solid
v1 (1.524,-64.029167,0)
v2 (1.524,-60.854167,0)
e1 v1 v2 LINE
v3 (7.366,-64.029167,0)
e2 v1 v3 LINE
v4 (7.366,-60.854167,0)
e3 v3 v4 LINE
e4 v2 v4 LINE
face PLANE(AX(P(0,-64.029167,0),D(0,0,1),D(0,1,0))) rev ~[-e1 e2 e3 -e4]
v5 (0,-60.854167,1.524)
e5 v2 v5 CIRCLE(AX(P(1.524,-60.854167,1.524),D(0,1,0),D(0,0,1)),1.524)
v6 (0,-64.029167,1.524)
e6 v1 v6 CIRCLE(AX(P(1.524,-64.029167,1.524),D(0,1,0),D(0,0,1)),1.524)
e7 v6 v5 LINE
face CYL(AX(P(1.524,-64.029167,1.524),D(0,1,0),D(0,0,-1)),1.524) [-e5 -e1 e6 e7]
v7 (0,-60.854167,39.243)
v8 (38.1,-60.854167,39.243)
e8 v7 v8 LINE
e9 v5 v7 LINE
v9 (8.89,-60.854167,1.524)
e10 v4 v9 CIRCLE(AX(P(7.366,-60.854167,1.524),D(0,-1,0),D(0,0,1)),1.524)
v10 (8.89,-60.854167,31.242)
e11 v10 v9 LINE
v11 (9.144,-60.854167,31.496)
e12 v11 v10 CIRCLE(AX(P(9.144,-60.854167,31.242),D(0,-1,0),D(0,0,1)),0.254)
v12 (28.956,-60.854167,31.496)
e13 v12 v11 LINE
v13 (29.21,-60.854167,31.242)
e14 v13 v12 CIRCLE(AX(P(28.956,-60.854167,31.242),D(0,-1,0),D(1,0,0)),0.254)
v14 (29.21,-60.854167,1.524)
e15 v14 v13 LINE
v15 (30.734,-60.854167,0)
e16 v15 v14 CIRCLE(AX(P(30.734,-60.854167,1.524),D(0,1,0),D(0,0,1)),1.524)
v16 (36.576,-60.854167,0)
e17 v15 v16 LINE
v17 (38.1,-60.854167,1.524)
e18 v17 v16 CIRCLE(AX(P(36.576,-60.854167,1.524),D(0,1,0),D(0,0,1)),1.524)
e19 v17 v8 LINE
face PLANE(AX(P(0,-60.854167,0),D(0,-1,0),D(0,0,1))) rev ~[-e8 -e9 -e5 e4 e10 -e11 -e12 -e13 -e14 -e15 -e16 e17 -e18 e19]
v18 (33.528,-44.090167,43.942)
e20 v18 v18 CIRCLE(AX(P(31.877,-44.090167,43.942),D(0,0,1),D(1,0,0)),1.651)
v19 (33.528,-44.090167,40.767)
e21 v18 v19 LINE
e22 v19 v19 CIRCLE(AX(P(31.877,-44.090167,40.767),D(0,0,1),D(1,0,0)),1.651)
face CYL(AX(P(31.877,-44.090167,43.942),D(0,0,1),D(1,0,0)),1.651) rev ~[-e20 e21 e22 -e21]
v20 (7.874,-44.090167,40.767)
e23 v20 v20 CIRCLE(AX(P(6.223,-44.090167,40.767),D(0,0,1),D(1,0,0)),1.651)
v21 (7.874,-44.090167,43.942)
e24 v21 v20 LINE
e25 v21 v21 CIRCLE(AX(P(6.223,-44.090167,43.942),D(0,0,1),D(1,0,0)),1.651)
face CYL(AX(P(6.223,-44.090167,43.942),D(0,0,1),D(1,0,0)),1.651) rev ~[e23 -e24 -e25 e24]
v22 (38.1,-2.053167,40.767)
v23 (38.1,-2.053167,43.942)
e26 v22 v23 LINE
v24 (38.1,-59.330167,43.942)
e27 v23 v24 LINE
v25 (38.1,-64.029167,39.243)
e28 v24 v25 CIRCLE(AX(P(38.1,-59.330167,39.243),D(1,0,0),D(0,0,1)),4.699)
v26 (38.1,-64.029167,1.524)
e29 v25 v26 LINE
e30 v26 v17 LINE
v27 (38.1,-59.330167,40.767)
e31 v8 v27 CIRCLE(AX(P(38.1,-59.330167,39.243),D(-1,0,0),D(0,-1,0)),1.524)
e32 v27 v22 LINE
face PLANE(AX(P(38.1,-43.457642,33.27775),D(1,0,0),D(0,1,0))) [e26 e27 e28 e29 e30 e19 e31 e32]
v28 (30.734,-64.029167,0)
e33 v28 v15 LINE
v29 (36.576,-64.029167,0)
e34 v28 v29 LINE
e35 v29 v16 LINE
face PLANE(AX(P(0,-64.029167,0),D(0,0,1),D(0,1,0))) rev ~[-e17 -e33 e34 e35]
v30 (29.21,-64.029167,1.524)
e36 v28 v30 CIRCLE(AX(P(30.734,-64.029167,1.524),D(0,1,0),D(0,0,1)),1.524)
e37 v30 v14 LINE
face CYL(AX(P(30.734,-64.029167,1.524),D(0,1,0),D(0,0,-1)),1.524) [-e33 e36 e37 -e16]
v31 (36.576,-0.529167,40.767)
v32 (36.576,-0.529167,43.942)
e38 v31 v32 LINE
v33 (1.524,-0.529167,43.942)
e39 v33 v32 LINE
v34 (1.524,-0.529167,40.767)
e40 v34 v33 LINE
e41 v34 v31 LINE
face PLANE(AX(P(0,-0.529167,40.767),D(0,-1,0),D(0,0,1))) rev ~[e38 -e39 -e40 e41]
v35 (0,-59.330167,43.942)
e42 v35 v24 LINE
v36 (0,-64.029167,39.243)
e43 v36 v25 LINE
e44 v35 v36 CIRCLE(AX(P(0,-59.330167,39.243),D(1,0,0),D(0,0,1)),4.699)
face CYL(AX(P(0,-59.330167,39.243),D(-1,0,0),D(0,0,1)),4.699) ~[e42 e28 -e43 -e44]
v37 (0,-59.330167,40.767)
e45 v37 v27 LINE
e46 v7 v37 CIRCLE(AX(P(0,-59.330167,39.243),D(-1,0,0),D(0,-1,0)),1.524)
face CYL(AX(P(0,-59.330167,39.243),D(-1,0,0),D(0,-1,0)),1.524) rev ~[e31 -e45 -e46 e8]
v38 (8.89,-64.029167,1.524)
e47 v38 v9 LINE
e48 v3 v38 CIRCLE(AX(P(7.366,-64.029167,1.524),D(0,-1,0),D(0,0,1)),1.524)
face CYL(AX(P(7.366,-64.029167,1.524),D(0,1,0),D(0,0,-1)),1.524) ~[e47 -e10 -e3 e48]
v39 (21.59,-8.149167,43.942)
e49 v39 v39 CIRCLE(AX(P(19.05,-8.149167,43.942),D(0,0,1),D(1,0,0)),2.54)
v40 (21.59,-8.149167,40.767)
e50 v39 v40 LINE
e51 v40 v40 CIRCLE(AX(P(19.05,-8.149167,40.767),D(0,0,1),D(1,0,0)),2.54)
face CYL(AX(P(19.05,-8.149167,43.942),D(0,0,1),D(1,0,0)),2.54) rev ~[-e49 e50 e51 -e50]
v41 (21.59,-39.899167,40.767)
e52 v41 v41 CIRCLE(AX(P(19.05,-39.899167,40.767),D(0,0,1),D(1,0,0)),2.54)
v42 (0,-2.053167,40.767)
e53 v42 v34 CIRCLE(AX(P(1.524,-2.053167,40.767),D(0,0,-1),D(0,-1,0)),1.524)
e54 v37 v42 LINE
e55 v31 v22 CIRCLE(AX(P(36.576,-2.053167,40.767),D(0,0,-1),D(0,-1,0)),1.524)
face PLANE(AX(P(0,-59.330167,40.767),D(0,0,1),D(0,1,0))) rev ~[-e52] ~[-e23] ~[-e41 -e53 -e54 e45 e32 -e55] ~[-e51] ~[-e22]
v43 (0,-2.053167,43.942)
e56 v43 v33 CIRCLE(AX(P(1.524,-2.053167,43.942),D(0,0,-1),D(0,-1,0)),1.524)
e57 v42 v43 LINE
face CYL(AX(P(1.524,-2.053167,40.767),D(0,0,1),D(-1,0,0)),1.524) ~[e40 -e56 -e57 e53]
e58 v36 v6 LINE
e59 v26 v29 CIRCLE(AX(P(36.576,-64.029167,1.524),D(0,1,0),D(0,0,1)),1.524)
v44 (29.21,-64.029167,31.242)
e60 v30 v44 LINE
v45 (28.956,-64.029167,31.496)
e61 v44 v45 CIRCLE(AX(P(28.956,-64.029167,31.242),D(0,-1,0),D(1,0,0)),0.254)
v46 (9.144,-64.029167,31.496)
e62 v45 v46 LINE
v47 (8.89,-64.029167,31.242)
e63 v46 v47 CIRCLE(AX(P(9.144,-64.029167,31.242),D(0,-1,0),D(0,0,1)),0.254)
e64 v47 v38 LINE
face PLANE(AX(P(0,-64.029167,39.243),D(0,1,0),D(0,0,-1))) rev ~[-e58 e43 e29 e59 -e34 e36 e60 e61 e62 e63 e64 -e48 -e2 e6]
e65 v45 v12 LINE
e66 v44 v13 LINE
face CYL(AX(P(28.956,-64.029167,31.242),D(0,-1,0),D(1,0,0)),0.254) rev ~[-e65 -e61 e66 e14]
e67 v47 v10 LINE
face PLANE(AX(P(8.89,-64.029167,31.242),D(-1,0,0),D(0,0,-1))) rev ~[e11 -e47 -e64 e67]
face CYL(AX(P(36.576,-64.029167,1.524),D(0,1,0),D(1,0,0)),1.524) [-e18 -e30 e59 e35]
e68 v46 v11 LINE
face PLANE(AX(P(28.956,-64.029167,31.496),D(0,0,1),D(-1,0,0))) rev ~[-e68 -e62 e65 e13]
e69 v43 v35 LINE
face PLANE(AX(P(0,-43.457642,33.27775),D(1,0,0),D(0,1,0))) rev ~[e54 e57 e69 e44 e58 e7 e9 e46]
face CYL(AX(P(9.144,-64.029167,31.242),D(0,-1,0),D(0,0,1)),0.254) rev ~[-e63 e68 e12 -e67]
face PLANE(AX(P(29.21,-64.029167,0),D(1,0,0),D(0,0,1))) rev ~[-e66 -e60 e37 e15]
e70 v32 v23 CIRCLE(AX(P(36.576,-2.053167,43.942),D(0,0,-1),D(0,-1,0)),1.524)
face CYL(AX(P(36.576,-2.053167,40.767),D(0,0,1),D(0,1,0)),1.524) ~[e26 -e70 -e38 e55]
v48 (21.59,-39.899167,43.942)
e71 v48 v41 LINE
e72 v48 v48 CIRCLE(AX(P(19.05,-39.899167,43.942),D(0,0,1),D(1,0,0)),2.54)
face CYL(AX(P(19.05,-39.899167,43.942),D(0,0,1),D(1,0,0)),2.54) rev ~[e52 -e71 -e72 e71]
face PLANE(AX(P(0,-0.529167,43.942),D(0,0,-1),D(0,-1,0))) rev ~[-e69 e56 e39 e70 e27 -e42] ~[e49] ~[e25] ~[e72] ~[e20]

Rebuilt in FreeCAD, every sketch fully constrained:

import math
import FreeCAD as App
import Part
import Sketcher
from FreeCAD import Vector
Q = App.Units.Quantity


def edges_at(feature, points):
    """Names of the edges that pass closest to the given points."""
    edges = feature.Shape.Edges
    near = lambda p: min(range(len(edges)), key=lambda i: edges[i].distToShape(Part.Vertex(*p))[0])
    return sorted({f"Edge{near(p) + 1}" for p in points})

doc = App.newDocument("Part")
body = doc.addObject("PartDesign::Body", "Body")

# Sketch on YZ plane
sketch1 = body.newObject("Sketcher::SketchObject", "Sketch")
sketch1.AttachmentSupport = (doc.getObject("YZ_Plane"), [""])
sketch1.MapMode = "FlatFace"
sketch1.addGeometry(Part.LineSegment(Vector(-64, 0, 0), Vector(-60.9, 0, 0)), False)
sketch1.addGeometry(Part.LineSegment(Vector(-60.9, 0, 0), Vector(-60.9, 39.2, 0)), False)
sketch1.addGeometry(Part.ArcOfCircle(Part.Circle(Vector(-59.3, 39.2, 0), Vector(0, 0, 1), 1.5), math.radians(90), math.radians(180)), False)
sketch1.addGeometry(Part.LineSegment(Vector(-59.3, 40.8, 0), Vector(-0.5, 40.8, 0)), False)
sketch1.addGeometry(Part.LineSegment(Vector(-0.5, 40.8, 0), Vector(-0.5, 43.9, 0)), False)
sketch1.addGeometry(Part.LineSegment(Vector(-0.5, 43.9, 0), Vector(-59.3, 43.9, 0)), False)
sketch1.addGeometry(Part.ArcOfCircle(Part.Circle(Vector(-59.3, 39.2, 0), Vector(0, 0, 1), 4.7), math.radians(90), math.radians(180)), False)
sketch1.addGeometry(Part.LineSegment(Vector(-64, 39.2, 0), Vector(-64, 0, 0)), False)
sketch1.addConstraint(Sketcher.Constraint("Coincident", 0, 2, 1, 1))
sketch1.addConstraint(Sketcher.Constraint("Tangent", 1, 2, 2, 2))
sketch1.addConstraint(Sketcher.Constraint("Tangent", 2, 1, 3, 1))
sketch1.addConstraint(Sketcher.Constraint("Coincident", 3, 2, 4, 1))
sketch1.addConstraint(Sketcher.Constraint("Coincident", 4, 2, 5, 1))
sketch1.addConstraint(Sketcher.Constraint("Tangent", 5, 2, 6, 1))
sketch1.addConstraint(Sketcher.Constraint("Tangent", 6, 2, 7, 1))
sketch1.addConstraint(Sketcher.Constraint("Coincident", 7, 2, 0, 1))
sketch1.addConstraint(Sketcher.Constraint("Horizontal", 0))
sketch1.addConstraint(Sketcher.Constraint("Vertical", 1))
sketch1.addConstraint(Sketcher.Constraint("Horizontal", 3))
sketch1.addConstraint(Sketcher.Constraint("Vertical", 4))
sketch1.addConstraint(Sketcher.Constraint("Horizontal", 5))
sketch1.addConstraint(Sketcher.Constraint("Vertical", 7))
sketch1.addConstraint(Sketcher.Constraint("Coincident", 6, 3, 2, 3))
sketch1.addConstraint(Sketcher.Constraint("PointOnObject", 0, 2, -1))
sketch1.addConstraint(Sketcher.Constraint("Radius", 2, Q("0.06 in")))
sketch1.addConstraint(Sketcher.Constraint("Radius", 6, Q("0.185 in")))
sketch1.addConstraint(Sketcher.Constraint("DistanceX", 3, 1, 3, 2, Q("2.315 in")))
sketch1.addConstraint(Sketcher.Constraint("DistanceY", 1, 1, 1, 2, Q("1.545 in")))
sketch1.addConstraint(Sketcher.Constraint("DistanceX", 2, 3, -1, 1, 59.330167))
pad1 = body.newObject("PartDesign::Pad", "Pad")
pad1.Profile = sketch1
pad1.Length = Q("1.5 in")

# Sketch on XZ plane
sketch2 = body.newObject("Sketcher::SketchObject", "Sketch001")
sketch2.AttachmentSupport = (doc.getObject("XZ_Plane"), [""])
sketch2.MapMode = "FlatFace"
sketch2.AttachmentOffset = App.Placement(Vector(0, 0, 64.029167), App.Rotation())
sketch2.addGeometry(Part.LineSegment(Vector(8.89, 31.24, 0), Vector(8.89, 0, 0)), False)
sketch2.addGeometry(Part.LineSegment(Vector(8.89, 0, 0), Vector(29.21, 0, 0)), False)
sketch2.addGeometry(Part.LineSegment(Vector(29.21, 0, 0), Vector(29.21, 31.24, 0)), False)
sketch2.addGeometry(Part.ArcOfCircle(Part.Circle(Vector(28.96, 31.24, 0), Vector(0, 0, 1), 0.25), math.radians(0), math.radians(90)), False)
sketch2.addGeometry(Part.LineSegment(Vector(28.96, 31.5, 0), Vector(9.14, 31.5, 0)), False)
sketch2.addGeometry(Part.ArcOfCircle(Part.Circle(Vector(9.14, 31.24, 0), Vector(0, 0, 1), 0.25), math.radians(90), math.radians(180)), False)
sketch2.addConstraint(Sketcher.Constraint("Coincident", 0, 2, 1, 1))
sketch2.addConstraint(Sketcher.Constraint("Coincident", 1, 2, 2, 1))
sketch2.addConstraint(Sketcher.Constraint("Tangent", 2, 2, 3, 1))
sketch2.addConstraint(Sketcher.Constraint("Tangent", 3, 2, 4, 1))
sketch2.addConstraint(Sketcher.Constraint("Tangent", 4, 2, 5, 1))
sketch2.addConstraint(Sketcher.Constraint("Tangent", 5, 2, 0, 1))
sketch2.addConstraint(Sketcher.Constraint("Vertical", 0))
sketch2.addConstraint(Sketcher.Constraint("Horizontal", 1))
sketch2.addConstraint(Sketcher.Constraint("Vertical", 2))
sketch2.addConstraint(Sketcher.Constraint("Horizontal", 4))
sketch2.addConstraint(Sketcher.Constraint("Equal", 3, 5))
sketch2.addConstraint(Sketcher.Constraint("PointOnObject", 0, 2, -1))
sketch2.addConstraint(Sketcher.Constraint("Radius", 3, Q("0.01 in")))
sketch2.addConstraint(Sketcher.Constraint("DistanceX", 1, 1, 1, 2, Q("0.8 in")))
sketch2.addConstraint(Sketcher.Constraint("DistanceY", 0, 2, 0, 1, Q("1.23 in")))
sketch2.addConstraint(Sketcher.Constraint("DistanceX", -1, 1, 3, 3, Q("1.14 in")))
pocket1 = body.newObject("PartDesign::Pocket", "Pocket")
pocket1.Profile = sketch2
pocket1.Type = "ThroughAll"
doc.recompute()

fillet = body.newObject("PartDesign::Fillet", "Fillet")
fillet.Base = (pocket1, edges_at(pocket1, [
    (8.89, -62.442, 0),
    (0, -62.442, 0),
    (29.21, -62.442, 0),
    (38.1, -62.442, 0),
    (38.1, -0.529, 42.355),
    (0, -0.529, 42.355),
]))
fillet.Radius = Q("0.06 in")

# Sketch on XY plane
sketch3 = body.newObject("Sketcher::SketchObject", "Sketch002")
sketch3.AttachmentSupport = (doc.getObject("XY_Plane"), [""])
sketch3.MapMode = "FlatFace"
sketch3.AttachmentOffset = App.Placement(Vector(0, 0, 1.73 * 25.4), App.Rotation())
sketch3.addGeometry(Part.Circle(Vector(19.1, -8.1, 0), Vector(0, 0, 1), 2.5), False)
sketch3.addGeometry(Part.Circle(Vector(19.1, -39.9, 0), Vector(0, 0, 1), 2.5), False)
sketch3.addGeometry(Part.Circle(Vector(31.9, -44.1, 0), Vector(0, 0, 1), 1.7), False)
sketch3.addGeometry(Part.Circle(Vector(6.2, -44.1, 0), Vector(0, 0, 1), 1.7), False)
sketch3.addConstraint(Sketcher.Constraint("Equal", 0, 1))
sketch3.addConstraint(Sketcher.Constraint("Equal", 2, 3))
sketch3.addConstraint(Sketcher.Constraint("Horizontal", 2, 3, 3, 3))
sketch3.addConstraint(Sketcher.Constraint("Vertical", 0, 3, 1, 3))
sketch3.addConstraint(Sketcher.Constraint("Diameter", 0, Q("0.2 in")))
sketch3.addConstraint(Sketcher.Constraint("Diameter", 2, Q("0.13 in")))
sketch3.addConstraint(Sketcher.Constraint("DistanceX", -1, 1, 0, 3, Q("0.75 in")))
sketch3.addConstraint(Sketcher.Constraint("DistanceY", 1, 3, 0, 3, Q("1.25 in")))
sketch3.addConstraint(Sketcher.Constraint("DistanceX", 3, 3, 2, 3, Q("1.01 in")))
sketch3.addConstraint(Sketcher.Constraint("DistanceX", -1, 1, 2, 3, Q("1.255 in")))
sketch3.addConstraint(Sketcher.Constraint("DistanceY", 2, 3, 1, 3, Q("0.165 in")))
sketch3.addConstraint(Sketcher.Constraint("DistanceY", 0, 3, -1, 1, 8.149167))
pocket2 = body.newObject("PartDesign::Pocket", "Pocket001")
pocket2.Profile = sketch3
pocket2.Type = "ThroughAll"

doc.recompute()
